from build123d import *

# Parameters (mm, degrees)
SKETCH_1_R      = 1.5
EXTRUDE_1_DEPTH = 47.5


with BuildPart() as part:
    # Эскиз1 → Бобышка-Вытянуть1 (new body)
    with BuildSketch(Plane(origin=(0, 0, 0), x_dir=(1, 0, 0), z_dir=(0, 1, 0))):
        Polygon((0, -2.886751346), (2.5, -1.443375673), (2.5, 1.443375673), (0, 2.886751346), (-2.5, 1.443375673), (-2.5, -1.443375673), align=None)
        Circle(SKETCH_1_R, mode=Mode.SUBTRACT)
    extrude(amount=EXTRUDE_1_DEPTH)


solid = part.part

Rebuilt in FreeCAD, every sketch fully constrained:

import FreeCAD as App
import Part
import Sketcher
from FreeCAD import Vector
Q = App.Units.Quantity

doc = App.newDocument("Part")
body = doc.addObject("PartDesign::Body", "Body")

# Sketch on XZ plane
sketch1 = body.newObject("Sketcher::SketchObject", "Sketch")
sketch1.AttachmentSupport = (doc.getObject("XZ_Plane"), [""])
sketch1.MapMode = "FlatFace"
sketch1.addGeometry([
    Part.LineSegment(Vector(0, 2.9, 0), Vector(2.5, 1.4, 0)),  # 0
    Part.LineSegment(Vector(2.5, 1.4, 0), Vector(2.5, -1.4, 0)),  # 1
    Part.LineSegment(Vector(2.5, -1.4, 0), Vector(0, -2.9, 0)),  # 2
    Part.LineSegment(Vector(0, -2.9, 0), Vector(-2.5, -1.4, 0)),  # 3
    Part.LineSegment(Vector(-2.5, -1.4, 0), Vector(-2.5, 1.4, 0)),  # 4
    Part.LineSegment(Vector(-2.5, 1.4, 0), Vector(0, 2.9, 0)),  # 5
    Part.Circle(Vector(0, 0, 0), Vector(0, 0, 1), 1.5),  # 6
], False)
sketch1.addConstraint([
    Sketcher.Constraint("Coincident", 0, 2, 1, 1),
    Sketcher.Constraint("Coincident", 1, 2, 2, 1),
    Sketcher.Constraint("Coincident", 2, 2, 3, 1),
    Sketcher.Constraint("Coincident", 3, 2, 4, 1),
    Sketcher.Constraint("Coincident", 4, 2, 5, 1),
    Sketcher.Constraint("Coincident", 5, 2, 0, 1),
    Sketcher.Constraint("Vertical", 1),
    Sketcher.Constraint("Vertical", 4),
    Sketcher.Constraint("Coincident", 6, 3, -1, 1),
    Sketcher.Constraint("Symmetric", 0, 2, 3, 2, -1, 1),
    Sketcher.Constraint("Symmetric", 2, 2, 5, 2, -1, 1),
    Sketcher.Constraint("PointOnObject", 2, 2, -2),
    Sketcher.Constraint("Parallel", 2, 5),
    Sketcher.Constraint("Horizontal", 1, 2, 3, 2),
    Sketcher.Constraint("Diameter", 6, Q("3 mm")),
    Sketcher.Constraint("Angle", 0, Q("-30 deg")),
    Sketcher.Constraint("DistanceX", 3, 2, 1, 2, Q("5 mm")),
    Sketcher.Constraint("DistanceY", 1, 2, 1, 1, Q("2.886751 mm")),
])
pad1 = body.newObject("PartDesign::Pad", "Pad")
pad1.Profile = sketch1
pad1.Length = 47.5
pad1.Reversed = True

doc.recompute()
